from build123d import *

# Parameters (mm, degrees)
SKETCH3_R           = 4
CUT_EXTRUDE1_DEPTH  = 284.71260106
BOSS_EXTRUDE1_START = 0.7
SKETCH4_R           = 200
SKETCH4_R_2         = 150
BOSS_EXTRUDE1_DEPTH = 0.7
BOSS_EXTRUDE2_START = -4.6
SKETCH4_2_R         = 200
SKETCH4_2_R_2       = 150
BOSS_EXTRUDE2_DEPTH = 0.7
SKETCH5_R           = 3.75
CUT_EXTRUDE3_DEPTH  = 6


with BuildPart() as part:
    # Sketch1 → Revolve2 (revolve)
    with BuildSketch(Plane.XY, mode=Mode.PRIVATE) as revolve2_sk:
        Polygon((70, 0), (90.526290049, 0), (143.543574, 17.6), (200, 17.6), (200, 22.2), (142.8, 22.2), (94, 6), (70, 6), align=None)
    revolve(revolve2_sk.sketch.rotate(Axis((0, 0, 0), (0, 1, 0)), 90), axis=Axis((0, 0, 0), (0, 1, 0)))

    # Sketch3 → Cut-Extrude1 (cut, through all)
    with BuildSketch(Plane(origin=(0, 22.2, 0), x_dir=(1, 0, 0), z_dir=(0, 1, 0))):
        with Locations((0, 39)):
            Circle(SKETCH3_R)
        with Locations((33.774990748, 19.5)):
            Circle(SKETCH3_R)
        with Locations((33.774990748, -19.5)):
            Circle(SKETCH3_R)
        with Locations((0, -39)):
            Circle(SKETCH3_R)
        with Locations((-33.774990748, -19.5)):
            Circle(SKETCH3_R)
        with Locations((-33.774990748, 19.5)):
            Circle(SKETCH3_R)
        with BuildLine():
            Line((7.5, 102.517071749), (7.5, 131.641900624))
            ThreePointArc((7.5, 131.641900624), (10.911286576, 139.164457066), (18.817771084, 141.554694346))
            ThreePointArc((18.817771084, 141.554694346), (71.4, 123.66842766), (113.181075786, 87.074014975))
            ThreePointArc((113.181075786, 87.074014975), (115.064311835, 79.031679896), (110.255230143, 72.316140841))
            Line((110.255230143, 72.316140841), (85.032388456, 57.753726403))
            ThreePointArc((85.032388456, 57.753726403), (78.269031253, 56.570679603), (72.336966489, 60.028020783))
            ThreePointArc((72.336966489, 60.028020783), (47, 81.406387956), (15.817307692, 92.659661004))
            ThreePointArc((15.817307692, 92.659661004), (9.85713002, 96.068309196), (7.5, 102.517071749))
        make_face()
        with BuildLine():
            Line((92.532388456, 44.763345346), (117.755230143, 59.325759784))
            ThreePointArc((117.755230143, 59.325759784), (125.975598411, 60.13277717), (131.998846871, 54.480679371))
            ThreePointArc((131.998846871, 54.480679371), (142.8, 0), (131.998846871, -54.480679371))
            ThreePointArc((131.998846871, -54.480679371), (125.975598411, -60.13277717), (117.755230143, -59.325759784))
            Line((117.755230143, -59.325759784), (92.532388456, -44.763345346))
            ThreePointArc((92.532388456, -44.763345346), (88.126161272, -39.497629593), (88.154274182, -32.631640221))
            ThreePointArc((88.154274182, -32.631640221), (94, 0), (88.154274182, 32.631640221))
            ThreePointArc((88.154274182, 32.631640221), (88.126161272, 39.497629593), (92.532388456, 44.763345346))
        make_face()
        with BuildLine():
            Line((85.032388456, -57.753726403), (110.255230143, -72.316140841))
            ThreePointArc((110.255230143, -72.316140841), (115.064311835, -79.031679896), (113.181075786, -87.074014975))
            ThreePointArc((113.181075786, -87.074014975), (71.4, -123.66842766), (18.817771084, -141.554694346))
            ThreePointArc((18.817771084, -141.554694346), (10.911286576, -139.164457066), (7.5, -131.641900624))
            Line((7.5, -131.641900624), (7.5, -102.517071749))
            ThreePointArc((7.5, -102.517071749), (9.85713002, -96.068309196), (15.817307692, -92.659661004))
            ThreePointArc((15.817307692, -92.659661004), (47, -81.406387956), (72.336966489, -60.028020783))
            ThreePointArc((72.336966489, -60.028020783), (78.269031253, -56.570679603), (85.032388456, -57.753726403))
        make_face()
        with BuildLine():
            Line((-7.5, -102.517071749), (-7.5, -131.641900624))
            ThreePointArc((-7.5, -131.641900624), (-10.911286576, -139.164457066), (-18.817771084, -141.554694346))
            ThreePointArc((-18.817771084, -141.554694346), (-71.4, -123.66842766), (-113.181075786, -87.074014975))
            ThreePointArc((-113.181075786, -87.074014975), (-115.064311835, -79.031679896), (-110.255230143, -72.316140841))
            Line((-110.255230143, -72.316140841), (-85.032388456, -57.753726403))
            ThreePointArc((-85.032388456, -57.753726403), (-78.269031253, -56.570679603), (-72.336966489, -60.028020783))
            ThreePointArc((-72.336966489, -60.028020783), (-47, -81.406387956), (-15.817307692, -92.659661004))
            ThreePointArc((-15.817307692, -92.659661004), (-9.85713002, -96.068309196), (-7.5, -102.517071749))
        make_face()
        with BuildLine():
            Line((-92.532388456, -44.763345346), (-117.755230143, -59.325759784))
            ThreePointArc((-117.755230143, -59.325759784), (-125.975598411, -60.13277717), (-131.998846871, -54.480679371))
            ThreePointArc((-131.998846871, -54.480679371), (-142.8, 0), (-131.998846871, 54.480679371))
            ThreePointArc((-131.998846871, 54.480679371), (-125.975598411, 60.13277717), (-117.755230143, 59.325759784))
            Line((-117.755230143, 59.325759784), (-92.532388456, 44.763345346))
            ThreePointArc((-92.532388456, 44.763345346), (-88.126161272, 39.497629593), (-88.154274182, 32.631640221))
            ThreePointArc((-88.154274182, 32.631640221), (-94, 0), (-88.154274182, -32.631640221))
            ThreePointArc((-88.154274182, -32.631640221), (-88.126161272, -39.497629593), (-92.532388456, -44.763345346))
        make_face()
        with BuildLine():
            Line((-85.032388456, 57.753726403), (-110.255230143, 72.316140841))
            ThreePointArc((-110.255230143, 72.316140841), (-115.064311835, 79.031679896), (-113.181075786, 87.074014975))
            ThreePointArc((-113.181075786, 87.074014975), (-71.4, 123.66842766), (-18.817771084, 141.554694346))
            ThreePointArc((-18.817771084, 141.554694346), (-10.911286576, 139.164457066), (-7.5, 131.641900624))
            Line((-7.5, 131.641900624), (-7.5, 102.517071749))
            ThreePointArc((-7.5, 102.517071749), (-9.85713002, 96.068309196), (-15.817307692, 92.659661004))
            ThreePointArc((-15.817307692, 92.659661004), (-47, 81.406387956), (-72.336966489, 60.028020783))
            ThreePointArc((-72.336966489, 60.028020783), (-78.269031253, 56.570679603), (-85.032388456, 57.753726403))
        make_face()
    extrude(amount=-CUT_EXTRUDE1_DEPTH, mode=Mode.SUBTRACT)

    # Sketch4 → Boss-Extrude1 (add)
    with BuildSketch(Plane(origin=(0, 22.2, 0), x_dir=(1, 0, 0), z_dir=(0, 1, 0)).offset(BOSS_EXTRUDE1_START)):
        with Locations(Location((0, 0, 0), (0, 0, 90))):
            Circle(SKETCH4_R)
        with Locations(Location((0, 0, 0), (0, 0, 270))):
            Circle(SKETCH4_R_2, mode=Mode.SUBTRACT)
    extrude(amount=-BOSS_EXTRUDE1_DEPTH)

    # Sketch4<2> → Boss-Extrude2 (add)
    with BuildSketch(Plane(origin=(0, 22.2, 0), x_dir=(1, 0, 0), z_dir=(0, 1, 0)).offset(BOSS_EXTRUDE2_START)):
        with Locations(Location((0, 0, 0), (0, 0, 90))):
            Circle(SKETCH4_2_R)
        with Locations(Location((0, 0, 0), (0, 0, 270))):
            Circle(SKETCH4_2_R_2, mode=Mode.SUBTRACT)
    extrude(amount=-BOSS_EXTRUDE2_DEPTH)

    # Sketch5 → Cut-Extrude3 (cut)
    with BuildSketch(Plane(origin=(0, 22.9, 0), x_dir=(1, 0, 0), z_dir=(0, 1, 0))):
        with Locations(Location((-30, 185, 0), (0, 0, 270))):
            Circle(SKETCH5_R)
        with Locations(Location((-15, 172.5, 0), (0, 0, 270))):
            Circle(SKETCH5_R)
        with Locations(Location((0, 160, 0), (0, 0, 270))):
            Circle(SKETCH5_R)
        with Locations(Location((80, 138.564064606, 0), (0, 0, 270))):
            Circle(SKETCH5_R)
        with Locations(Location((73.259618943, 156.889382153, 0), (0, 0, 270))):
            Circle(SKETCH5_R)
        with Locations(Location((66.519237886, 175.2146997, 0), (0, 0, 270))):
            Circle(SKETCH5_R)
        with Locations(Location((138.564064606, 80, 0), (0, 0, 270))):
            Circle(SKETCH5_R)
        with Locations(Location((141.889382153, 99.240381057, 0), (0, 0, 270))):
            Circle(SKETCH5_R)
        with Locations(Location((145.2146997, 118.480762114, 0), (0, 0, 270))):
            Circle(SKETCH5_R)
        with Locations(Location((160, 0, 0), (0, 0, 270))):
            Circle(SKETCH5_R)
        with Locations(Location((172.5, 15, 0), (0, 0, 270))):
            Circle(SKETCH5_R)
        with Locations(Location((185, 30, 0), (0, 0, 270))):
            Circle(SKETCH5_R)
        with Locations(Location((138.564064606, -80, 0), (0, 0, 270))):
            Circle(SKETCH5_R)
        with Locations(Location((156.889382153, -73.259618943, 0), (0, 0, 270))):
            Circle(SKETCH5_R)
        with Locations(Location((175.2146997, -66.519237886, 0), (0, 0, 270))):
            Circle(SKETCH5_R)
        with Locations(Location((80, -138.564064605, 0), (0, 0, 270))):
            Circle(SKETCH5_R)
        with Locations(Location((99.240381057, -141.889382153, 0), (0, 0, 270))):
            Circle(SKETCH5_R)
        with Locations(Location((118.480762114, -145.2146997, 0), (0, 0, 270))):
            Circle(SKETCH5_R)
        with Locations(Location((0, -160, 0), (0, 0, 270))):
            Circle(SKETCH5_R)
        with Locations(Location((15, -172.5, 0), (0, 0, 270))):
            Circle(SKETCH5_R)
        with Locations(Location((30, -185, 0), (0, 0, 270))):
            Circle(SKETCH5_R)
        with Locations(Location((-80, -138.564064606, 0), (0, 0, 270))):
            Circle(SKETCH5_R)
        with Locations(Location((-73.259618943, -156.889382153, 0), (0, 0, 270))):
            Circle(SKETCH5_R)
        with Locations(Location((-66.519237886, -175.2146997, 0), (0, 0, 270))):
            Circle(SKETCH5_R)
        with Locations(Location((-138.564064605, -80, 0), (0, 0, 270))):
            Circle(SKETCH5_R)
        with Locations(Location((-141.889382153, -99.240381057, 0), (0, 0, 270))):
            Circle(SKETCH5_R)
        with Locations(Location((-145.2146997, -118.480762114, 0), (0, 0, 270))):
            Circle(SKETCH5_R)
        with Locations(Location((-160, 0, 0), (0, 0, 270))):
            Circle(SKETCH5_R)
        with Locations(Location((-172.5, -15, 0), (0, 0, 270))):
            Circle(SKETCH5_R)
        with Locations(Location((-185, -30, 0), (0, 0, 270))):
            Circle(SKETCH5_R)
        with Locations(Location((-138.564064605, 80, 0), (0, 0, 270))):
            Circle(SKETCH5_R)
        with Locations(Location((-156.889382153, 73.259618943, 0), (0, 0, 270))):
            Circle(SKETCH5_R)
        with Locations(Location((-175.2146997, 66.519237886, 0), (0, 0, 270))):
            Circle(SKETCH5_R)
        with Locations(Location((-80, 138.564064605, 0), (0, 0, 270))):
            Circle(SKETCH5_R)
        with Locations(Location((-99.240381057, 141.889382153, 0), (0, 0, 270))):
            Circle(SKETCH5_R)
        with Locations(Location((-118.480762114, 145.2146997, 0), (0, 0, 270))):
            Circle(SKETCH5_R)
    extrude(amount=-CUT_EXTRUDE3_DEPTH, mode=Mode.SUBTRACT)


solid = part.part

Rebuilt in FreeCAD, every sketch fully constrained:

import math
import FreeCAD as App
import Part
import Sketcher
from FreeCAD import Vector
Q = App.Units.Quantity


def add_polygon(sketch, points):
    """Adds a closed chain of lines whose ends are joined by coincident constraints."""
    first, n = sketch.GeometryCount, len(points)
    for a, b in zip(points, points[1:] + points[:1]):
        sketch.addGeometry(Part.LineSegment(App.Vector(*a, 0), App.Vector(*b, 0)), False)
    for i in range(n):
        sketch.addConstraint(Sketcher.Constraint("Coincident", first + i, 2, first + (i + 1) % n, 1))

doc = App.newDocument("Part")
body = doc.addObject("PartDesign::Body", "Body")

# Sketch on XY plane
sketch1 = body.newObject("Sketcher::SketchObject", "Sketch")
sketch1.AttachmentSupport = (doc.getObject("XY_Plane"), [""])
sketch1.MapMode = "FlatFace"
add_polygon(sketch1, [(70, 0), (90.52629, 0), (143.543574, 17.6), (200, 17.6), (200, 22.2), (142.8, 22.2), (94, 6), (70, 6)])  # lines 0-7
sketch1.addConstraint([
    Sketcher.Constraint("Horizontal", 0),
    Sketcher.Constraint("Horizontal", 2),
    Sketcher.Constraint("Vertical", 3),
    Sketcher.Constraint("Horizontal", 4),
    Sketcher.Constraint("Horizontal", 6),
    Sketcher.Constraint("Vertical", 7),
    Sketcher.Constraint("PointOnObject", 0, 2, -1),
    Sketcher.Constraint("Parallel", 1, 5),
    Sketcher.Constraint("DistanceX", 6, 2, 6, 1, Q("24 mm")),
    Sketcher.Constraint("DistanceY", 7, 2, 7, 1, Q("6 mm")),
    Sketcher.Constraint("DistanceX", 4, 2, 4, 1, Q("57.2 mm")),
    Sketcher.Constraint("DistanceY", 3, 1, 3, 2, Q("4.6 mm")),
    Sketcher.Constraint("DistanceX", -1, 1, 2, 2, Q("200 mm")),
    Sketcher.Constraint("DistanceX", -1, 1, 5, 2, Q("94 mm")),
    Sketcher.Constraint("DistanceY", -1, 1, 1, 2, Q("17.6 mm")),
    Sketcher.Constraint("DistanceX", 0, 1, 0, 2, Q("20.52629 mm")),
])
revolution = body.newObject("PartDesign::Revolution", "Revolution")
revolution.Profile = sketch1
revolution.ReferenceAxis = (sketch1, ["V_Axis"])
revolution.Angle = 360

# Sketch on XZ plane
sketch2 = body.newObject("Sketcher::SketchObject", "Sketch001")
sketch2.AttachmentSupport = (doc.getObject("XZ_Plane"), [""])
sketch2.MapMode = "FlatFace"
sketch2.AttachmentOffset = App.Placement(Vector(0, 0, -22.2), App.Rotation())
sketch2.addGeometry([
    Part.Circle(Vector(0, -39, 0), Vector(0, 0, 1), 4),  # 0
    Part.Circle(Vector(33.774991, -19.5, 0), Vector(0, 0, 1), 4),  # 1
    Part.Circle(Vector(33.774991, 19.5, 0), Vector(0, 0, 1), 4),  # 2
    Part.Circle(Vector(0, 39, 0), Vector(0, 0, 1), 4),  # 3
    Part.Circle(Vector(-33.774991, 19.5, 0), Vector(0, 0, 1), 4),  # 4
    Part.Circle(Vector(-33.774991, -19.5, 0), Vector(0, 0, 1), 4),  # 5
    Part.LineSegment(Vector(7.5, -131.641901, 0), Vector(7.5, -102.517072, 0)),  # 6
    Part.ArcOfCircle(Part.Circle(Vector(17.5, -102.517072, 0), Vector(0, 0, 1), 10), math.radians(99.687204), math.radians(180)),  # 7
    Part.ArcOfCircle(Part.Circle(Vector(0, 0, 0), Vector(0, 0, 1), 94), math.radians(-80.312796), math.radians(-39.687204)),  # 8
    Part.ArcOfCircle(Part.Circle(Vector(80.032388, -66.41398, 0), Vector(0, 0, 1), 10), math.radians(60), math.radians(140.312796)),  # 9
    Part.LineSegment(Vector(85.032388, -57.753726, 0), Vector(110.25523, -72.316141, 0)),  # 10
    Part.ArcOfCircle(Part.Circle(Vector(105.25523, -80.976395, 0), Vector(0, 0, 1), 10), math.radians(-37.572297), math.radians(60)),  # 11
    Part.ArcOfCircle(Part.Circle(Vector(0, 0, 0), Vector(0, 0, 1), 142.8), math.radians(-82.427703), math.radians(-37.572297)),  # 12
    Part.ArcOfCircle(Part.Circle(Vector(17.5, -131.641901, 0), Vector(0, 0, 1), 10), math.radians(180), math.radians(277.572297)),  # 13
    Part.LineSegment(Vector(117.75523, -59.32576, 0), Vector(92.532388, -44.763345, 0)),  # 14
    Part.ArcOfCircle(Part.Circle(Vector(97.532388, -36.103091, 0), Vector(0, 0, 1), 10), math.radians(159.687204), math.radians(240)),  # 15
    Part.ArcOfCircle(Part.Circle(Vector(0, 0, 0), Vector(0, 0, 1), 94), math.radians(-20.312796), math.radians(20.312796)),  # 16
    Part.ArcOfCircle(Part.Circle(Vector(97.532388, 36.103091, 0), Vector(0, 0, 1), 10), math.radians(120), math.radians(200.312796)),  # 17
    Part.LineSegment(Vector(92.532388, 44.763345, 0), Vector(117.75523, 59.32576, 0)),  # 18
    Part.ArcOfCircle(Part.Circle(Vector(122.75523, 50.665506, 0), Vector(0, 0, 1), 10), math.radians(22.427703), math.radians(120)),  # 19
    Part.ArcOfCircle(Part.Circle(Vector(0, 0, 0), Vector(0, 0, 1), 142.8), math.radians(-22.427703), math.radians(22.427703)),  # 20
    Part.ArcOfCircle(Part.Circle(Vector(122.75523, -50.665506, 0), Vector(0, 0, 1), 10), math.radians(-120), math.radians(-22.427703)),  # 21
    Part.LineSegment(Vector(110.25523, 72.316141, 0), Vector(85.032388, 57.753726, 0)),  # 22
    Part.ArcOfCircle(Part.Circle(Vector(80.032388, 66.41398, 0), Vector(0, 0, 1), 10), math.radians(-140.312796), math.radians(-60)),  # 23
    Part.ArcOfCircle(Part.Circle(Vector(0, 0, 0), Vector(0, 0, 1), 94), math.radians(39.687204), math.radians(80.312796)),  # 24
    Part.ArcOfCircle(Part.Circle(Vector(17.5, 102.517072, 0), Vector(0, 0, 1), 10), math.radians(180), math.radians(260.312796)),  # 25
    Part.LineSegment(Vector(7.5, 102.517072, 0), Vector(7.5, 131.641901, 0)),  # 26
    Part.ArcOfCircle(Part.Circle(Vector(17.5, 131.641901, 0), Vector(0, 0, 1), 10), math.radians(82.427703), math.radians(180)),  # 27
    Part.ArcOfCircle(Part.Circle(Vector(0, 0, 0), Vector(0, 0, 1), 142.8), math.radians(37.572297), math.radians(82.427703)),  # 28
    Part.ArcOfCircle(Part.Circle(Vector(105.25523, 80.976395, 0), Vector(0, 0, 1), 10), math.radians(-60), math.radians(37.572297)),  # 29
    Part.LineSegment(Vector(-7.5, 131.641901, 0), Vector(-7.5, 102.517072, 0)),  # 30
    Part.ArcOfCircle(Part.Circle(Vector(-17.5, 102.517072, 0), Vector(0, 0, 1), 10), math.radians(-80.312796), math.radians(0)),  # 31
    Part.ArcOfCircle(Part.Circle(Vector(0, 0, 0), Vector(0, 0, 1), 94), math.radians(99.687204), math.radians(140.312796)),  # 32
    Part.ArcOfCircle(Part.Circle(Vector(-80.032388, 66.41398, 0), Vector(0, 0, 1), 10), math.radians(-120), math.radians(-39.687204)),  # 33
    Part.LineSegment(Vector(-85.032388, 57.753726, 0), Vector(-110.25523, 72.316141, 0)),  # 34
    Part.ArcOfCircle(Part.Circle(Vector(-105.25523, 80.976395, 0), Vector(0, 0, 1), 10), math.radians(142.427703), math.radians(240)),  # 35
    Part.ArcOfCircle(Part.Circle(Vector(0, 0, 0), Vector(0, 0, 1), 142.8), math.radians(97.572297), math.radians(142.427703)),  # 36
    Part.ArcOfCircle(Part.Circle(Vector(-17.5, 131.641901, 0), Vector(0, 0, 1), 10), math.radians(0), math.radians(97.572297)),  # 37
    Part.LineSegment(Vector(-117.75523, 59.32576, 0), Vector(-92.532388, 44.763345, 0)),  # 38
    Part.ArcOfCircle(Part.Circle(Vector(-97.532388, 36.103091, 0), Vector(0, 0, 1), 10), math.radians(-20.312796), math.radians(60)),  # 39
    Part.ArcOfCircle(Part.Circle(Vector(0, 0, 0), Vector(0, 0, 1), 94), math.radians(159.687204), math.radians(200.312796)),  # 40
    Part.ArcOfCircle(Part.Circle(Vector(-97.532388, -36.103091, 0), Vector(0, 0, 1), 10), math.radians(-60), math.radians(20.312796)),  # 41
    Part.LineSegment(Vector(-92.532388, -44.763345, 0), Vector(-117.75523, -59.32576, 0)),  # 42
    Part.ArcOfCircle(Part.Circle(Vector(-122.75523, -50.665506, 0), Vector(0, 0, 1), 10), math.radians(-157.572297), math.radians(-60)),  # 43
    Part.ArcOfCircle(Part.Circle(Vector(0, 0, 0), Vector(0, 0, 1), 142.8), math.radians(157.572297), math.radians(202.427703)),  # 44
    Part.ArcOfCircle(Part.Circle(Vector(-122.75523, 50.665506, 0), Vector(0, 0, 1), 10), math.radians(60), math.radians(157.572297)),  # 45
    Part.LineSegment(Vector(-110.25523, -72.316141, 0), Vector(-85.032388, -57.753726, 0)),  # 46
    Part.ArcOfCircle(Part.Circle(Vector(-80.032388, -66.41398, 0), Vector(0, 0, 1), 10), math.radians(39.687204), math.radians(120)),  # 47
    Part.ArcOfCircle(Part.Circle(Vector(0, 0, 0), Vector(0, 0, 1), 94), math.radians(-140.312796), math.radians(-99.687204)),  # 48
    Part.ArcOfCircle(Part.Circle(Vector(-17.5, -102.517072, 0), Vector(0, 0, 1), 10), math.radians(0), math.radians(80.312796)),  # 49
    Part.LineSegment(Vector(-7.5, -102.517072, 0), Vector(-7.5, -131.641901, 0)),  # 50
    Part.ArcOfCircle(Part.Circle(Vector(-17.5, -131.641901, 0), Vector(0, 0, 1), 10), math.radians(-97.572297), math.radians(0)),  # 51
    Part.ArcOfCircle(Part.Circle(Vector(0, 0, 0), Vector(0, 0, 1), 142.8), math.radians(-142.427703), math.radians(-97.572297)),  # 52
    Part.ArcOfCircle(Part.Circle(Vector(-105.25523, -80.976395, 0), Vector(0, 0, 1), 10), math.radians(120), math.radians(217.572297)),  # 53
], False)
sketch2.addConstraint([
    Sketcher.Constraint("Tangent", 6, 2, 7, 2),
    Sketcher.Constraint("Tangent", 7, 1, 8, 1),
    Sketcher.Constraint("Tangent", 8, 2, 9, 2),
    Sketcher.Constraint("Tangent", 9, 1, 10, 1),
    Sketcher.Constraint("Tangent", 10, 2, 11, 2),
    Sketcher.Constraint("Tangent", 11, 1, 12, 2),
    Sketcher.Constraint("Tangent", 12, 1, 13, 2),
    Sketcher.Constraint("Tangent", 13, 1, 6, 1),
    Sketcher.Constraint("Tangent", 14, 2, 15, 2),
    Sketcher.Constraint("Tangent", 15, 1, 16, 1),
    Sketcher.Constraint("Tangent", 16, 2, 17, 2),
    Sketcher.Constraint("Tangent", 17, 1, 18, 1),
    Sketcher.Constraint("Tangent", 18, 2, 19, 2),
    Sketcher.Constraint("Tangent", 19, 1, 20, 2),
    Sketcher.Constraint("Tangent", 20, 1, 21, 2),
    Sketcher.Constraint("Tangent", 21, 1, 14, 1),
    Sketcher.Constraint("Tangent", 22, 2, 23, 2),
    Sketcher.Constraint("Tangent", 23, 1, 24, 1),
    Sketcher.Constraint("Tangent", 24, 2, 25, 2),
    Sketcher.Constraint("Tangent", 25, 1, 26, 1),
    Sketcher.Constraint("Tangent", 26, 2, 27, 2),
    Sketcher.Constraint("Tangent", 27, 1, 28, 2),
    Sketcher.Constraint("Tangent", 28, 1, 29, 2),
    Sketcher.Constraint("Tangent", 29, 1, 22, 1),
    Sketcher.Constraint("Tangent", 30, 2, 31, 2),
    Sketcher.Constraint("Tangent", 31, 1, 32, 1),
    Sketcher.Constraint("Tangent", 32, 2, 33, 2),
    Sketcher.Constraint("Tangent", 33, 1, 34, 1),
    Sketcher.Constraint("Tangent", 34, 2, 35, 2),
    Sketcher.Constraint("Tangent", 35, 1, 36, 2),
    Sketcher.Constraint("Tangent", 36, 1, 37, 2),
    Sketcher.Constraint("Tangent", 37, 1, 30, 1),
    Sketcher.Constraint("Tangent", 38, 2, 39, 2),
    Sketcher.Constraint("Tangent", 39, 1, 40, 1),
    Sketcher.Constraint("Tangent", 40, 2, 41, 2),
    Sketcher.Constraint("Tangent", 41, 1, 42, 1),
    Sketcher.Constraint("Tangent", 42, 2, 43, 2),
    Sketcher.Constraint("Tangent", 43, 1, 44, 2),
    Sketcher.Constraint("Tangent", 44, 1, 45, 2),
    Sketcher.Constraint("Tangent", 45, 1, 38, 1),
    Sketcher.Constraint("Tangent", 46, 2, 47, 2),
    Sketcher.Constraint("Tangent", 47, 1, 48, 1),
    Sketcher.Constraint("Tangent", 48, 2, 49, 2),
    Sketcher.Constraint("Tangent", 49, 1, 50, 1),
    Sketcher.Constraint("Tangent", 50, 2, 51, 2),
    Sketcher.Constraint("Tangent", 51, 1, 52, 2),
    Sketcher.Constraint("Tangent", 52, 1, 53, 2),
    Sketcher.Constraint("Tangent", 53, 1, 46, 1),
    Sketcher.Constraint("Vertical", 6),
    Sketcher.Constraint("Vertical", 26),
    Sketcher.Constraint("Vertical", 30),
    Sketcher.Constraint("Vertical", 50),
    Sketcher.Constraint("Coincident", 8, 3, -1, 1),
    Sketcher.Constraint("Coincident", 12, 3, -1, 1),
    Sketcher.Constraint("Coincident", 16, 3, -1, 1),
    Sketcher.Constraint("Coincident", 20, 3, -1, 1),
    Sketcher.Constraint("Coincident", 24, 3, -1, 1),
    Sketcher.Constraint("Coincident", 28, 3, -1, 1),
    Sketcher.Constraint("Coincident", 32, 3, -1, 1),
    Sketcher.Constraint("Coincident", 36, 3, -1, 1),
    Sketcher.Constraint("Coincident", 40, 3, -1, 1),
    Sketcher.Constraint("Coincident", 44, 3, -1, 1),
    Sketcher.Constraint("Coincident", 48, 3, -1, 1),
    Sketcher.Constraint("Coincident", 52, 3, -1, 1),
    Sketcher.Constraint("Equal", 0, 1),
    Sketcher.Constraint("Equal", 1, 2),
    Sketcher.Constraint("Equal", 2, 3),
    Sketcher.Constraint("Equal", 3, 4),
    Sketcher.Constraint("Equal", 4, 5),
    Sketcher.Constraint("Equal", 7, 9),
    Sketcher.Constraint("Equal", 9, 11),
    Sketcher.Constraint("Equal", 11, 13),
    Sketcher.Constraint("Equal", 13, 15),
    Sketcher.Constraint("Equal", 8, 16),
    Sketcher.Constraint("Equal", 15, 17),
    Sketcher.Constraint("Equal", 17, 19),
    Sketcher.Constraint("Equal", 12, 20),
    Sketcher.Constraint("Equal", 19, 21),
    Sketcher.Constraint("Equal", 21, 23),
    Sketcher.Constraint("Equal", 16, 24),
    Sketcher.Constraint("Equal", 23, 25),
    Sketcher.Constraint("Equal", 25, 27),
    Sketcher.Constraint("Equal", 20, 28),
    Sketcher.Constraint("Equal", 27, 29),
    Sketcher.Constraint("Equal", 29, 31),
    Sketcher.Constraint("Equal", 24, 32),
    Sketcher.Constraint("Equal", 31, 33),
    Sketcher.Constraint("Equal", 33, 35),
    Sketcher.Constraint("Equal", 28, 36),
    Sketcher.Constraint("Equal", 35, 37),
    Sketcher.Constraint("Equal", 37, 39),
    Sketcher.Constraint("Equal", 32, 40),
    Sketcher.Constraint("Equal", 39, 41),
    Sketcher.Constraint("Equal", 41, 43),
    Sketcher.Constraint("Equal", 36, 44),
    Sketcher.Constraint("Equal", 43, 45),
    Sketcher.Constraint("Equal", 45, 47),
    Sketcher.Constraint("Equal", 40, 48),
    Sketcher.Constraint("Equal", 47, 49),
    Sketcher.Constraint("Equal", 49, 51),
    Sketcher.Constraint("Equal", 44, 52),
    Sketcher.Constraint("Equal", 51, 53),
    Sketcher.Constraint("Symmetric", 0, 3, 3, 3, -1, 1),
    Sketcher.Constraint("Symmetric", 1, 3, 4, 3, -1, 1),
    Sketcher.Constraint("Symmetric", 2, 3, 5, 3, -1, 1),
    Sketcher.Constraint("Symmetric", 9, 1, 33, 1, -1, 1),
    Sketcher.Constraint("Symmetric", 14, 2, 38, 2, -1, 1),
    Sketcher.Constraint("Symmetric", 17, 1, 41, 1, -1, 1),
    Sketcher.Constraint("Symmetric", 22, 2, 46, 2, -1, 1),
    Sketcher.Constraint("Symmetric", 2, 3, 4, 3, -2),
    Sketcher.Constraint("Symmetric", 22, 2, 33, 1, -2),
    Sketcher.Constraint("Symmetric", 17, 1, 38, 2, -2),
    Sketcher.Constraint("PointOnObject", 0, 3, -2),
    Sketcher.Constraint("Parallel", 10, 14),
    Sketcher.Constraint("Horizontal", 25, 3, 31, 3),
    Sketcher.Constraint("Horizontal", 7, 3, 49, 3),
    Sketcher.Constraint("Vertical", 13, 3, 25, 3),
    Sketcher.Constraint("Equal", 10, 14),
    Sketcher.Constraint("Diameter", 0, Q("8 mm")),
    Sketcher.Constraint("Radius", 7, Q("10 mm")),
    Sketcher.Constraint("Radius", 8, Q("94 mm")),
    Sketcher.Constraint("Radius", 12, Q("142.8 mm")),
    Sketcher.Constraint("Angle", 10, Q("-30 deg")),
    Sketcher.Constraint("DistanceY", 0, 3, -1, 1, Q("39 mm")),
    Sketcher.Constraint("DistanceY", 1, 3, -1, 1, Q("19.5 mm")),
    Sketcher.Constraint("DistanceX", -1, 1, 7, 3, Q("17.5 mm")),
    Sketcher.Constraint("Distance", 10, Q("29.124829 mm")),
    Sketcher.Constraint("DistanceX", -1, 1, 1, 3, Q("33.774991 mm")),
])
pocket1 = body.newObject("PartDesign::Pocket", "Pocket")
pocket1.Profile = sketch2
pocket1.Type = "ThroughAll"
pocket1.Reversed = True

# Sketch on XZ plane
sketch3 = body.newObject("Sketcher::SketchObject", "Sketch002")
sketch3.AttachmentSupport = (doc.getObject("XZ_Plane"), [""])
sketch3.MapMode = "FlatFace"
sketch3.AttachmentOffset = App.Placement(Vector(0, 0, -22.9), App.Rotation())
sketch3.addGeometry([
    Part.Circle(Vector(0, 0, 0), Vector(0, 0, 1), 200),
    Part.Circle(Vector(0, 0, 0), Vector(0, 0, 1), 150),
], False)
sketch3.addConstraint([
    Sketcher.Constraint("Coincident", 0, 3, -1, 1),
    Sketcher.Constraint("Coincident", 1, 3, -1, 1),
    Sketcher.Constraint("Diameter", 0, Q("400 mm")),
    Sketcher.Constraint("Diameter", 1, Q("300 mm")),
])
pad1 = body.newObject("PartDesign::Pad", "Pad")
pad1.Profile = sketch3
pad1.Length = 0.7

# Sketch on XZ plane
sketch4 = body.newObject("Sketcher::SketchObject", "Sketch003")
sketch4.AttachmentSupport = (doc.getObject("XZ_Plane"), [""])
sketch4.MapMode = "FlatFace"
sketch4.AttachmentOffset = App.Placement(Vector(0, 0, -17.6), App.Rotation())
sketch4.addGeometry([
    Part.Circle(Vector(0, 0, 0), Vector(0, 0, 1), 200),
    Part.Circle(Vector(0, 0, 0), Vector(0, 0, 1), 150),
], False)
sketch4.addConstraint([
    Sketcher.Constraint("Coincident", 0, 3, -1, 1),
    Sketcher.Constraint("Coincident", 1, 3, -1, 1),
    Sketcher.Constraint("Diameter", 0, Q("400 mm")),
    Sketcher.Constraint("Diameter", 1, Q("300 mm")),
])
pad2 = body.newObject("PartDesign::Pad", "Pad001")
pad2.Profile = sketch4
pad2.Length = 0.7

# Sketch on XZ plane
sketch5 = body.newObject("Sketcher::SketchObject", "Sketch004")
sketch5.AttachmentSupport = (doc.getObject("XZ_Plane"), [""])
sketch5.MapMode = "FlatFace"
sketch5.AttachmentOffset = App.Placement(Vector(0, 0, -22.9), App.Rotation())
sketch5.addGeometry([
    Part.Circle(Vector(-30, -185, 0), Vector(0, 0, 1), 3.75),  # 0
    Part.Circle(Vector(-15, -172.5, 0), Vector(0, 0, 1), 3.75),  # 1
    Part.Circle(Vector(0, -160, 0), Vector(0, 0, 1), 3.75),  # 2
    Part.Circle(Vector(80, -138.564065, 0), Vector(0, 0, 1), 3.75),  # 3
    Part.Circle(Vector(73.259619, -156.889382, 0), Vector(0, 0, 1), 3.75),  # 4
    Part.Circle(Vector(66.519238, -175.2147, 0), Vector(0, 0, 1), 3.75),  # 5
    Part.Circle(Vector(138.564065, -80, 0), Vector(0, 0, 1), 3.75),  # 6
    Part.Circle(Vector(141.889382, -99.240381, 0), Vector(0, 0, 1), 3.75),  # 7
    Part.Circle(Vector(145.2147, -118.480762, 0), Vector(0, 0, 1), 3.75),  # 8
    Part.Circle(Vector(160, 0, 0), Vector(0, 0, 1), 3.75),  # 9
    Part.Circle(Vector(172.5, -15, 0), Vector(0, 0, 1), 3.75),  # 10
    Part.Circle(Vector(185, -30, 0), Vector(0, 0, 1), 3.75),  # 11
    Part.Circle(Vector(138.564065, 80, 0), Vector(0, 0, 1), 3.75),  # 12
    Part.Circle(Vector(156.889382, 73.259619, 0), Vector(0, 0, 1), 3.75),  # 13
    Part.Circle(Vector(175.2147, 66.519238, 0), Vector(0, 0, 1), 3.75),  # 14
    Part.Circle(Vector(80, 138.564065, 0), Vector(0, 0, 1), 3.75),  # 15
    Part.Circle(Vector(99.240381, 141.889382, 0), Vector(0, 0, 1), 3.75),  # 16
    Part.Circle(Vector(118.480762, 145.2147, 0), Vector(0, 0, 1), 3.75),  # 17
    Part.Circle(Vector(0, 160, 0), Vector(0, 0, 1), 3.75),  # 18
    Part.Circle(Vector(15, 172.5, 0), Vector(0, 0, 1), 3.75),  # 19
    Part.Circle(Vector(30, 185, 0), Vector(0, 0, 1), 3.75),  # 20
    Part.Circle(Vector(-80, 138.564065, 0), Vector(0, 0, 1), 3.75),  # 21
    Part.Circle(Vector(-73.259619, 156.889382, 0), Vector(0, 0, 1), 3.75),  # 22
    Part.Circle(Vector(-66.519238, 175.2147, 0), Vector(0, 0, 1), 3.75),  # 23
    Part.Circle(Vector(-138.564065, 80, 0), Vector(0, 0, 1), 3.75),  # 24
    Part.Circle(Vector(-141.889382, 99.240381, 0), Vector(0, 0, 1), 3.75),  # 25
    Part.Circle(Vector(-145.2147, 118.480762, 0), Vector(0, 0, 1), 3.75),  # 26
    Part.Circle(Vector(-160, 0, 0), Vector(0, 0, 1), 3.75),  # 27
    Part.Circle(Vector(-172.5, 15, 0), Vector(0, 0, 1), 3.75),  # 28
    Part.Circle(Vector(-185, 30, 0), Vector(0, 0, 1), 3.75),  # 29
    Part.Circle(Vector(-138.564065, -80, 0), Vector(0, 0, 1), 3.75),  # 30
    Part.Circle(Vector(-156.889382, -73.259619, 0), Vector(0, 0, 1), 3.75),  # 31
    Part.Circle(Vector(-175.2147, -66.519238, 0), Vector(0, 0, 1), 3.75),  # 32
    Part.Circle(Vector(-80, -138.564065, 0), Vector(0, 0, 1), 3.75),  # 33
    Part.Circle(Vector(-99.240381, -141.889382, 0), Vector(0, 0, 1), 3.75),  # 34
    Part.Circle(Vector(-118.480762, -145.2147, 0), Vector(0, 0, 1), 3.75),  # 35
], False)
sketch5.addConstraint([
    Sketcher.Constraint("Equal", 0, 1),
    Sketcher.Constraint("Equal", 1, 2),
    Sketcher.Constraint("Equal", 2, 3),
    Sketcher.Constraint("Equal", 3, 4),
    Sketcher.Constraint("Equal", 4, 5),
    Sketcher.Constraint("Equal", 5, 6),
    Sketcher.Constraint("Equal", 6, 7),
    Sketcher.Constraint("Equal", 7, 8),
    Sketcher.Constraint("Equal", 8, 9),
    Sketcher.Constraint("Equal", 9, 10),
    Sketcher.Constraint("Equal", 10, 11),
    Sketcher.Constraint("Equal", 11, 12),
    Sketcher.Constraint("Equal", 12, 13),
    Sketcher.Constraint("Equal", 13, 14),
    Sketcher.Constraint("Equal", 14, 15),
    Sketcher.Constraint("Equal", 15, 16),
    Sketcher.Constraint("Equal", 16, 17),
    Sketcher.Constraint("Equal", 17, 18),
    Sketcher.Constraint("Equal", 18, 19),
    Sketcher.Constraint("Equal", 19, 20),
    Sketcher.Constraint("Equal", 20, 21),
    Sketcher.Constraint("Equal", 21, 22),
    Sketcher.Constraint("Equal", 22, 23),
    Sketcher.Constraint("Equal", 23, 24),
    Sketcher.Constraint("Equal", 24, 25),
    Sketcher.Constraint("Equal", 25, 26),
    Sketcher.Constraint("Equal", 26, 27),
    Sketcher.Constraint("Equal", 27, 28),
    Sketcher.Constraint("Equal", 28, 29),
    Sketcher.Constraint("Equal", 29, 30),
    Sketcher.Constraint("Equal", 30, 31),
    Sketcher.Constraint("Equal", 31, 32),
    Sketcher.Constraint("Equal", 32, 33),
    Sketcher.Constraint("Equal", 33, 34),
    Sketcher.Constraint("Equal", 34, 35),
    Sketcher.Constraint("Symmetric", 2, 3, 18, 3, -1, 1),
    Sketcher.Constraint("Symmetric", 1, 3, 19, 3, -1, 1),
    Sketcher.Constraint("Symmetric", 0, 3, 20, 3, -1, 1),
    Sketcher.Constraint("Symmetric", 3, 3, 21, 3, -1, 1),
    Sketcher.Constraint("Symmetric", 4, 3, 22, 3, -1, 1),
    Sketcher.Constraint("Symmetric", 5, 3, 23, 3, -1, 1),
    Sketcher.Constraint("Symmetric", 6, 3, 24, 3, -1, 1),
    Sketcher.Constraint("Symmetric", 7, 3, 25, 3, -1, 1),
    Sketcher.Constraint("Symmetric", 8, 3, 26, 3, -1, 1),
    Sketcher.Constraint("Symmetric", 9, 3, 27, 3, -1, 1),
    Sketcher.Constraint("Symmetric", 10, 3, 28, 3, -1, 1),
    Sketcher.Constraint("Symmetric", 11, 3, 29, 3, -1, 1),
    Sketcher.Constraint("Symmetric", 12, 3, 30, 3, -1, 1),
    Sketcher.Constraint("Symmetric", 13, 3, 31, 3, -1, 1),
    Sketcher.Constraint("Symmetric", 14, 3, 32, 3, -1, 1),
    Sketcher.Constraint("Symmetric", 15, 3, 33, 3, -1, 1),
    Sketcher.Constraint("Symmetric", 16, 3, 34, 3, -1, 1),
    Sketcher.Constraint("Symmetric", 17, 3, 35, 3, -1, 1),
    Sketcher.Constraint("Symmetric", 15, 3, 21, 3, -2),
    Sketcher.Constraint("Symmetric", 12, 3, 24, 3, -2),
    Sketcher.Constraint("PointOnObject", 2, 3, -2),
    Sketcher.Constraint("PointOnObject", 9, 3, -1),
    Sketcher.Constraint("Diameter", 0, Q("7.5 mm")),
    Sketcher.Constraint("DistanceX", 0, 3, -1, 1, Q("30 mm")),
    Sketcher.Constraint("DistanceY", 0, 3, -1, 1, Q("185 mm")),
    Sketcher.Constraint("DistanceX", 1, 3, -1, 1, Q("15 mm")),
    Sketcher.Constraint("DistanceY", 2, 3, -1, 1, Q("160 mm")),
    Sketcher.Constraint("DistanceX", -1, 1, 3, 3, Q("80 mm")),
    Sketcher.Constraint("DistanceY", 6, 3, -1, 1, Q("80 mm")),
    Sketcher.Constraint("DistanceX", -1, 1, 9, 3, Q("160 mm")),
    Sketcher.Constraint("DistanceY", 10, 3, -1, 1, Q("15 mm")),
    Sketcher.Constraint("DistanceX", -1, 1, 11, 3, Q("185 mm")),
    Sketcher.Constraint("DistanceY", 11, 3, -1, 1, Q("30 mm")),
    Sketcher.Constraint("DistanceY", 1, 3, -1, 1, Q("172.5 mm")),
    Sketcher.Constraint("DistanceX", -1, 1, 10, 3, Q("172.5 mm")),
    Sketcher.Constraint("DistanceY", 4, 3, 7, 3, Q("57.649001 mm")),
    Sketcher.Constraint("DistanceX", 16, 3, 13, 3, Q("57.649001 mm")),
    Sketcher.Constraint("DistanceY", 5, 3, -1, 1, Q("175.2147 mm")),
    Sketcher.Constraint("DistanceX", -1, 1, 8, 3, Q("145.2147 mm")),
    Sketcher.Constraint("DistanceX", -1, 1, 14, 3, Q("175.2147 mm")),
    Sketcher.Constraint("DistanceY", -1, 1, 17, 3, Q("145.2147 mm")),
    Sketcher.Constraint("DistanceX", -1, 1, 4, 3, Q("73.259619 mm")),
    Sketcher.Constraint("DistanceY", 7, 3, -1, 1, Q("99.240381 mm")),
    Sketcher.Constraint("DistanceY", -1, 1, 13, 3, Q("73.259619 mm")),
    Sketcher.Constraint("DistanceX", -1, 1, 16, 3, Q("99.240381 mm")),
    Sketcher.Constraint("DistanceX", 5, 3, 4, 3, Q("6.740381 mm")),
    Sketcher.Constraint("DistanceY", 8, 3, 7, 3, Q("19.240381 mm")),
    Sketcher.Constraint("DistanceY", 14, 3, 13, 3, Q("6.740381 mm")),
    Sketcher.Constraint("DistanceX", 16, 3, 17, 3, Q("19.240381 mm")),
    Sketcher.Constraint("DistanceY", 3, 3, -1, 1, Q("138.564065 mm")),
    Sketcher.Constraint("DistanceX", -1, 1, 6, 3, Q("138.564065 mm")),
    Sketcher.Constraint("DistanceX", -1, 1, 7, 3, Q("141.889382 mm")),
    Sketcher.Constraint("DistanceY", -1, 1, 16, 3, Q("141.889382 mm")),
])
pocket2 = body.newObject("PartDesign::Pocket", "Pocket001")
pocket2.Profile = sketch5
pocket2.Length = 6
pocket2.Reversed = True

doc.recompute()
